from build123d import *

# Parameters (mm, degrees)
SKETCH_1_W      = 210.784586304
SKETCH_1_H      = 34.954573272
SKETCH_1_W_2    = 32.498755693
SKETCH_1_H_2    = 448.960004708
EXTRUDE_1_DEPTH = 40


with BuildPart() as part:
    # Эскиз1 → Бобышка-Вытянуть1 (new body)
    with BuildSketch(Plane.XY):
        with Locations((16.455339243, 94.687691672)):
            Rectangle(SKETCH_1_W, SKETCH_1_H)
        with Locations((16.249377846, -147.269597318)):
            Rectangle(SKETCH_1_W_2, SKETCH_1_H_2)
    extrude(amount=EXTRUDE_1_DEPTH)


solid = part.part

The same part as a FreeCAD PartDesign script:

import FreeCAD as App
import Part
import Sketcher
from FreeCAD import Vector


def add_polygon(sketch, points):
    """Adds a closed chain of lines whose ends are joined by coincident constraints."""
    first, n = sketch.GeometryCount, len(points)
    for a, b in zip(points, points[1:] + points[:1]):
        sketch.addGeometry(Part.LineSegment(App.Vector(*a, 0), App.Vector(*b, 0)), False)
    for i in range(n):
        sketch.addConstraint(Sketcher.Constraint("Coincident", first + i, 2, first + (i + 1) % n, 1))

doc = App.newDocument("Part")
body = doc.addObject("PartDesign::Body", "Body")

# Sketch on XY plane
sketch1 = body.newObject("Sketcher::SketchObject", "Sketch")
sketch1.AttachmentSupport = (doc.getObject("XY_Plane"), [""])
sketch1.MapMode = "FlatFace"
add_polygon(sketch1, [(-89, 112), (-89, 77), (0, 77), (0, -372), (32, -372), (32, 77), (122, 77), (122, 112)])  # lines 0-7
sketch1.addConstraint(Sketcher.Constraint("Vertical", 0))
sketch1.addConstraint(Sketcher.Constraint("Horizontal", 1))
sketch1.addConstraint(Sketcher.Constraint("Vertical", 2))
sketch1.addConstraint(Sketcher.Constraint("Horizontal", 3))
sketch1.addConstraint(Sketcher.Constraint("Vertical", 4))
sketch1.addConstraint(Sketcher.Constraint("Horizontal", 5))
sketch1.addConstraint(Sketcher.Constraint("Vertical", 6))
sketch1.addConstraint(Sketcher.Constraint("Horizontal", 7))
sketch1.addConstraint(Sketcher.Constraint("PointOnObject", 1, 2, -2))
sketch1.addConstraint(Sketcher.Constraint("Horizontal", 1, 2, 4, 2))
sketch1.addConstraint(Sketcher.Constraint("DistanceY", 2, 2, -1, 1, 371.7496))
sketch1.addConstraint(Sketcher.Constraint("DistanceX", 1, 1, 1, 2, 88.936954))
sketch1.addConstraint(Sketcher.Constraint("DistanceX", 3, 1, 3, 2, 32.498756))
sketch1.addConstraint(Sketcher.Constraint("DistanceX", 5, 1, 5, 2, 89.348877))
sketch1.addConstraint(Sketcher.Constraint("DistanceY", 0, 2, 0, 1, 34.954573))
sketch1.addConstraint(Sketcher.Constraint("DistanceY", 2, 2, 2, 1, 448.960005))
pad1 = body.newObject("PartDesign::Pad", "Pad")
pad1.Profile = sketch1
pad1.Length = 40

doc.recompute()
